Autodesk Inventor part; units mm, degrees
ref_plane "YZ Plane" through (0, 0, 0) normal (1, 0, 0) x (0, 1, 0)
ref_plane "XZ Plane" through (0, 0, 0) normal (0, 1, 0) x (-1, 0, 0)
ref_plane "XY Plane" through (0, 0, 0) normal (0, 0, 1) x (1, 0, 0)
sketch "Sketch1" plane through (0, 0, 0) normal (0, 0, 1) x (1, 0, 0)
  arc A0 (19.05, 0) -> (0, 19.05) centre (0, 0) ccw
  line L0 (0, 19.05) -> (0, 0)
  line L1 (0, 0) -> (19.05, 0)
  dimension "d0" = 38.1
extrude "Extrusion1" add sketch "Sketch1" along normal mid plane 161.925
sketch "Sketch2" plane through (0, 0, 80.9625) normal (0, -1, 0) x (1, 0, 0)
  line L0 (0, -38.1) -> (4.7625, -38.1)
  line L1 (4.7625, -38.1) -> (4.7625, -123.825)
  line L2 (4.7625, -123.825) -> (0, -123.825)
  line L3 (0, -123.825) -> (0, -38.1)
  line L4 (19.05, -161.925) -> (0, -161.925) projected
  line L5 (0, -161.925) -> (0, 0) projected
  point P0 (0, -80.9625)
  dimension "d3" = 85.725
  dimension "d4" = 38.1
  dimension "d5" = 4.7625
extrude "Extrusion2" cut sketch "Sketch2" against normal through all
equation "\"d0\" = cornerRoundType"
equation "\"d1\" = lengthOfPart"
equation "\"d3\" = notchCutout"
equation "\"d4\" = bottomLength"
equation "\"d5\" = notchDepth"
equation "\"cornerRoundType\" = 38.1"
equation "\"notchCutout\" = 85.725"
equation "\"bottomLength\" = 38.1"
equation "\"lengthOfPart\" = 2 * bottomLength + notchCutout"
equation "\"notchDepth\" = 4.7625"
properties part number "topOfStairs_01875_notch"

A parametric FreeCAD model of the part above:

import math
import FreeCAD as App
import Part
import Sketcher
from FreeCAD import Vector
Q = App.Units.Quantity


def add_polygon(sketch, points):
    """Adds a closed chain of lines whose ends are joined by coincident constraints."""
    first, n = sketch.GeometryCount, len(points)
    for a, b in zip(points, points[1:] + points[:1]):
        sketch.addGeometry(Part.LineSegment(App.Vector(*a, 0), App.Vector(*b, 0)), False)
    for i in range(n):
        sketch.addConstraint(Sketcher.Constraint("Coincident", first + i, 2, first + (i + 1) % n, 1))

doc = App.newDocument("Part")
body = doc.addObject("PartDesign::Body", "Body")

sketch1 = doc.addObject("Sketcher::SketchObject", "Sketch")
body.addObject(sketch1)
sketch1.AttachmentSupport = (doc.XY_Plane, [""])
sketch1.MapMode = "FlatFace"
sketch1.addGeometry([
    Part.LineSegment(Vector(0, 0, 0), Vector(19.05, 0, 0)),
    Part.ArcOfCircle(Part.Circle(Vector(0, 0, 0), Vector(0, 0, 1), 19.05), math.radians(0), math.radians(90)),
    Part.LineSegment(Vector(0, 19.05, 0), Vector(0, 0, 0)),
], False)
sketch1.addConstraint([
    Sketcher.Constraint("Coincident", 0, 2, 1, 1),
    Sketcher.Constraint("Coincident", 1, 2, 2, 1),
    Sketcher.Constraint("Coincident", 2, 2, 0, 1),
    Sketcher.Constraint("Horizontal", 0),
    Sketcher.Constraint("Vertical", 2),
    Sketcher.Constraint("Coincident", 1, 3, -1, 1),
    Sketcher.Constraint("Coincident", 2, 2, -1, 1),
    Sketcher.Constraint("Radius", 1, Q("0.75 in")),
])
pad1 = doc.addObject("PartDesign::Pad", "Pad")
body.addObject(pad1)
pad1.Profile = sketch1
pad1.Length = Q("6.375 in")
pad1.Midplane = True

sketch2 = doc.addObject("Sketcher::SketchObject", "Sketch001")
body.addObject(sketch2)
sketch2.AttachmentSupport = (doc.XZ_Plane, [""])
sketch2.MapMode = "FlatFace"
add_polygon(sketch2, [(4.7625, 42.8625), (0, 42.8625), (0, -42.8625), (4.7625, -42.8625)])
sketch2.addConstraint([
    Sketcher.Constraint("Horizontal", 0),
    Sketcher.Constraint("Vertical", 1),
    Sketcher.Constraint("Horizontal", 2),
    Sketcher.Constraint("Vertical", 3),
    Sketcher.Constraint("Symmetric", 0, 2, 1, 2, -1, 1),
    Sketcher.Constraint("DistanceX", 0, 2, 0, 1, Q("0.1875 in")),
    Sketcher.Constraint("DistanceY", 1, 2, 1, 1, Q("3.375 in")),
])
pocket1 = doc.addObject("PartDesign::Pocket", "Pocket")
body.addObject(pocket1)
pocket1.Profile = sketch2
pocket1.Type = "ThroughAll"

doc.recompute()
